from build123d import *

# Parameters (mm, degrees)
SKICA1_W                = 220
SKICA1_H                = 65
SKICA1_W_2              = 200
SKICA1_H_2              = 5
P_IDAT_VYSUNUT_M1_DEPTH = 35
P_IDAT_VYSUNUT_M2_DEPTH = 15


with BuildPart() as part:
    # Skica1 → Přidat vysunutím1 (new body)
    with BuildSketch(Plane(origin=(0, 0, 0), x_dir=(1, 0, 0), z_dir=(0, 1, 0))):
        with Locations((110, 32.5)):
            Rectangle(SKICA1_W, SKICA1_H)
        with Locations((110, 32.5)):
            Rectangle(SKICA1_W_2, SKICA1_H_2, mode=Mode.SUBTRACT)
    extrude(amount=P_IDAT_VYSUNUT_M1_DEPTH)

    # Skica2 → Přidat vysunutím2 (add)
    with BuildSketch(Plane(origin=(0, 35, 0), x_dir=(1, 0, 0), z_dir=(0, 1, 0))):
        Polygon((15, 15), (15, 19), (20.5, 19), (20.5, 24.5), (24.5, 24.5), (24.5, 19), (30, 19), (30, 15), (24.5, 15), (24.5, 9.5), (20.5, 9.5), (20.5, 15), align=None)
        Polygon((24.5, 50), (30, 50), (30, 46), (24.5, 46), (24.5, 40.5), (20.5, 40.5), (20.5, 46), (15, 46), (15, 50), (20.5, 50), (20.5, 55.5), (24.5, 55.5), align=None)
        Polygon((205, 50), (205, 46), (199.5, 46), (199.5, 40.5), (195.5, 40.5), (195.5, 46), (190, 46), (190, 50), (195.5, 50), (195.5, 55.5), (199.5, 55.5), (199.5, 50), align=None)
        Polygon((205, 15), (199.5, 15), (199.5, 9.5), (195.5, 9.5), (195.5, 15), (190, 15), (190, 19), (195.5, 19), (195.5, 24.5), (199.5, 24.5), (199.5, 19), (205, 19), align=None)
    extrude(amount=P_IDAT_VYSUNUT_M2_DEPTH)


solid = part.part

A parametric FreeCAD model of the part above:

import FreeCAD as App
import Part
import Sketcher

V = App.Vector

doc = App.newDocument("Part")
body = doc.addObject("PartDesign::Body", "Body")

# Sketch on XZ plane
sketch1 = doc.addObject("Sketcher::SketchObject", "Sketch")
body.addObject(sketch1)
sketch1.AttachmentSupport = (doc.XZ_Plane, [""])
sketch1.MapMode = "FlatFace"
sketch1.addGeometry(Part.LineSegment(V(0, -65, 0), V(0, 0, 0)), False)
sketch1.addGeometry(Part.LineSegment(V(0, 0, 0), V(220, 0, 0)), False)
sketch1.addGeometry(Part.LineSegment(V(220, 0, 0), V(220, -65, 0)), False)
sketch1.addGeometry(Part.LineSegment(V(220, -65, 0), V(0, -65, 0)), False)
sketch1.addGeometry(Part.LineSegment(V(210, -30, 0), V(10, -30, 0)), False)
sketch1.addGeometry(Part.LineSegment(V(10, -30, 0), V(10, -35, 0)), False)
sketch1.addGeometry(Part.LineSegment(V(10, -35, 0), V(210, -35, 0)), False)
sketch1.addGeometry(Part.LineSegment(V(210, -35, 0), V(210, -30, 0)), False)
sketch1.addConstraint(Sketcher.Constraint("Coincident", 0, 2, 1, 1))
sketch1.addConstraint(Sketcher.Constraint("Coincident", 1, 2, 2, 1))
sketch1.addConstraint(Sketcher.Constraint("Coincident", 2, 2, 3, 1))
sketch1.addConstraint(Sketcher.Constraint("Coincident", 3, 2, 0, 1))
sketch1.addConstraint(Sketcher.Constraint("Coincident", 4, 2, 5, 1))
sketch1.addConstraint(Sketcher.Constraint("Coincident", 5, 2, 6, 1))
sketch1.addConstraint(Sketcher.Constraint("Coincident", 6, 2, 7, 1))
sketch1.addConstraint(Sketcher.Constraint("Coincident", 7, 2, 4, 1))
sketch1.addConstraint(Sketcher.Constraint("Vertical", 0))
sketch1.addConstraint(Sketcher.Constraint("Horizontal", 1))
sketch1.addConstraint(Sketcher.Constraint("Vertical", 2))
sketch1.addConstraint(Sketcher.Constraint("Horizontal", 3))
sketch1.addConstraint(Sketcher.Constraint("Horizontal", 4))
sketch1.addConstraint(Sketcher.Constraint("Vertical", 5))
sketch1.addConstraint(Sketcher.Constraint("Horizontal", 6))
sketch1.addConstraint(Sketcher.Constraint("Vertical", 7))
sketch1.addConstraint(Sketcher.Constraint("Coincident", 0, 2, -1, 1))
sketch1.addConstraint(Sketcher.Constraint("DistanceX", 1, 1, 1, 2, 220.0))
sketch1.addConstraint(Sketcher.Constraint("DistanceX", 4, 2, 4, 1, 200.0))
sketch1.addConstraint(Sketcher.Constraint("DistanceY", 0, 1, 0, 2, 65.0))
sketch1.addConstraint(Sketcher.Constraint("DistanceY", 5, 2, 5, 1, 5.0))
sketch1.addConstraint(Sketcher.Constraint("DistanceX", -1, 1, 4, 2, 10.0))
sketch1.addConstraint(Sketcher.Constraint("DistanceY", 4, 2, -1, 1, 30.0))
pad1 = doc.addObject("PartDesign::Pad", "Pad")
body.addObject(pad1)
pad1.Profile = sketch1
pad1.Length = 35
pad1.Reversed = True

# Sketch on XZ plane
sketch2 = doc.addObject("Sketcher::SketchObject", "Sketch001")
body.addObject(sketch2)
sketch2.AttachmentSupport = (doc.XZ_Plane, [""])
sketch2.MapMode = "FlatFace"
sketch2.AttachmentOffset = App.Placement(V(0, 0, -35), App.Rotation())
sketch2.addGeometry(Part.LineSegment(V(15, -19, 0), V(15, -15, 0)), False)
sketch2.addGeometry(Part.LineSegment(V(15, -15, 0), V(20.5, -15, 0)), False)
sketch2.addGeometry(Part.LineSegment(V(20.5, -15, 0), V(20.5, -9.5, 0)), False)
sketch2.addGeometry(Part.LineSegment(V(20.5, -9.5, 0), V(24.5, -9.5, 0)), False)
sketch2.addGeometry(Part.LineSegment(V(24.5, -9.5, 0), V(24.5, -15, 0)), False)
sketch2.addGeometry(Part.LineSegment(V(24.5, -15, 0), V(30, -15, 0)), False)
sketch2.addGeometry(Part.LineSegment(V(30, -15, 0), V(30, -19, 0)), False)
sketch2.addGeometry(Part.LineSegment(V(30, -19, 0), V(24.5, -19, 0)), False)
sketch2.addGeometry(Part.LineSegment(V(24.5, -19, 0), V(24.5, -24.5, 0)), False)
sketch2.addGeometry(Part.LineSegment(V(24.5, -24.5, 0), V(20.5, -24.5, 0)), False)
sketch2.addGeometry(Part.LineSegment(V(20.5, -24.5, 0), V(20.5, -19, 0)), False)
sketch2.addGeometry(Part.LineSegment(V(20.5, -19, 0), V(15, -19, 0)), False)
sketch2.addGeometry(Part.LineSegment(V(30, -50, 0), V(24.5, -50, 0)), False)
sketch2.addGeometry(Part.LineSegment(V(24.5, -50, 0), V(24.5, -55.5, 0)), False)
sketch2.addGeometry(Part.LineSegment(V(24.5, -55.5, 0), V(20.5, -55.5, 0)), False)
sketch2.addGeometry(Part.LineSegment(V(20.5, -55.5, 0), V(20.5, -50, 0)), False)
sketch2.addGeometry(Part.LineSegment(V(20.5, -50, 0), V(15, -50, 0)), False)
sketch2.addGeometry(Part.LineSegment(V(15, -50, 0), V(15, -46, 0)), False)
sketch2.addGeometry(Part.LineSegment(V(15, -46, 0), V(20.5, -46, 0)), False)
sketch2.addGeometry(Part.LineSegment(V(20.5, -46, 0), V(20.5, -40.5, 0)), False)
sketch2.addGeometry(Part.LineSegment(V(20.5, -40.5, 0), V(24.5, -40.5, 0)), False)
sketch2.addGeometry(Part.LineSegment(V(24.5, -40.5, 0), V(24.5, -46, 0)), False)
sketch2.addGeometry(Part.LineSegment(V(24.5, -46, 0), V(30, -46, 0)), False)
sketch2.addGeometry(Part.LineSegment(V(30, -46, 0), V(30, -50, 0)), False)
sketch2.addGeometry(Part.LineSegment(V(205, -46, 0), V(205, -50, 0)), False)
sketch2.addGeometry(Part.LineSegment(V(205, -50, 0), V(199.5, -50, 0)), False)
sketch2.addGeometry(Part.LineSegment(V(199.5, -50, 0), V(199.5, -55.5, 0)), False)
sketch2.addGeometry(Part.LineSegment(V(199.5, -55.5, 0), V(195.5, -55.5, 0)), False)
sketch2.addGeometry(Part.LineSegment(V(195.5, -55.5, 0), V(195.5, -50, 0)), False)
sketch2.addGeometry(Part.LineSegment(V(195.5, -50, 0), V(190, -50, 0)), False)
sketch2.addGeometry(Part.LineSegment(V(190, -50, 0), V(190, -46, 0)), False)
sketch2.addGeometry(Part.LineSegment(V(190, -46, 0), V(195.5, -46, 0)), False)
sketch2.addGeometry(Part.LineSegment(V(195.5, -46, 0), V(195.5, -40.5, 0)), False)
sketch2.addGeometry(Part.LineSegment(V(195.5, -40.5, 0), V(199.5, -40.5, 0)), False)
sketch2.addGeometry(Part.LineSegment(V(199.5, -40.5, 0), V(199.5, -46, 0)), False)
sketch2.addGeometry(Part.LineSegment(V(199.5, -46, 0), V(205, -46, 0)), False)
sketch2.addGeometry(Part.LineSegment(V(199.5, -15, 0), V(205, -15, 0)), False)
sketch2.addGeometry(Part.LineSegment(V(205, -15, 0), V(205, -19, 0)), False)
sketch2.addGeometry(Part.LineSegment(V(205, -19, 0), V(199.5, -19, 0)), False)
sketch2.addGeometry(Part.LineSegment(V(199.5, -19, 0), V(199.5, -24.5, 0)), False)
sketch2.addGeometry(Part.LineSegment(V(199.5, -24.5, 0), V(195.5, -24.5, 0)), False)
sketch2.addGeometry(Part.LineSegment(V(195.5, -24.5, 0), V(195.5, -19, 0)), False)
sketch2.addGeometry(Part.LineSegment(V(195.5, -19, 0), V(190, -19, 0)), False)
sketch2.addGeometry(Part.LineSegment(V(190, -19, 0), V(190, -15, 0)), False)
sketch2.addGeometry(Part.LineSegment(V(190, -15, 0), V(195.5, -15, 0)), False)
sketch2.addGeometry(Part.LineSegment(V(195.5, -15, 0), V(195.5, -9.5, 0)), False)
sketch2.addGeometry(Part.LineSegment(V(195.5, -9.5, 0), V(199.5, -9.5, 0)), False)
sketch2.addGeometry(Part.LineSegment(V(199.5, -9.5, 0), V(199.5, -15, 0)), False)
sketch2.addConstraint(Sketcher.Constraint("Coincident", 0, 2, 1, 1))
sketch2.addConstraint(Sketcher.Constraint("Coincident", 1, 2, 2, 1))
sketch2.addConstraint(Sketcher.Constraint("Coincident", 2, 2, 3, 1))
sketch2.addConstraint(Sketcher.Constraint("Coincident", 3, 2, 4, 1))
sketch2.addConstraint(Sketcher.Constraint("Coincident", 4, 2, 5, 1))
sketch2.addConstraint(Sketcher.Constraint("Coincident", 5, 2, 6, 1))
sketch2.addConstraint(Sketcher.Constraint("Coincident", 6, 2, 7, 1))
sketch2.addConstraint(Sketcher.Constraint("Coincident", 7, 2, 8, 1))
sketch2.addConstraint(Sketcher.Constraint("Coincident", 8, 2, 9, 1))
sketch2.addConstraint(Sketcher.Constraint("Coincident", 9, 2, 10, 1))
sketch2.addConstraint(Sketcher.Constraint("Coincident", 10, 2, 11, 1))
sketch2.addConstraint(Sketcher.Constraint("Coincident", 11, 2, 0, 1))
sketch2.addConstraint(Sketcher.Constraint("Coincident", 12, 2, 13, 1))
sketch2.addConstraint(Sketcher.Constraint("Coincident", 13, 2, 14, 1))
sketch2.addConstraint(Sketcher.Constraint("Coincident", 14, 2, 15, 1))
sketch2.addConstraint(Sketcher.Constraint("Coincident", 15, 2, 16, 1))
sketch2.addConstraint(Sketcher.Constraint("Coincident", 16, 2, 17, 1))
sketch2.addConstraint(Sketcher.Constraint("Coincident", 17, 2, 18, 1))
sketch2.addConstraint(Sketcher.Constraint("Coincident", 18, 2, 19, 1))
sketch2.addConstraint(Sketcher.Constraint("Coincident", 19, 2, 20, 1))
sketch2.addConstraint(Sketcher.Constraint("Coincident", 20, 2, 21, 1))
sketch2.addConstraint(Sketcher.Constraint("Coincident", 21, 2, 22, 1))
sketch2.addConstraint(Sketcher.Constraint("Coincident", 22, 2, 23, 1))
sketch2.addConstraint(Sketcher.Constraint("Coincident", 23, 2, 12, 1))
sketch2.addConstraint(Sketcher.Constraint("Coincident", 24, 2, 25, 1))
sketch2.addConstraint(Sketcher.Constraint("Coincident", 25, 2, 26, 1))
sketch2.addConstraint(Sketcher.Constraint("Coincident", 26, 2, 27, 1))
sketch2.addConstraint(Sketcher.Constraint("Coincident", 27, 2, 28, 1))
sketch2.addConstraint(Sketcher.Constraint("Coincident", 28, 2, 29, 1))
sketch2.addConstraint(Sketcher.Constraint("Coincident", 29, 2, 30, 1))
sketch2.addConstraint(Sketcher.Constraint("Coincident", 30, 2, 31, 1))
sketch2.addConstraint(Sketcher.Constraint("Coincident", 31, 2, 32, 1))
sketch2.addConstraint(Sketcher.Constraint("Coincident", 32, 2, 33, 1))
sketch2.addConstraint(Sketcher.Constraint("Coincident", 33, 2, 34, 1))
sketch2.addConstraint(Sketcher.Constraint("Coincident", 34, 2, 35, 1))
sketch2.addConstraint(Sketcher.Constraint("Coincident", 35, 2, 24, 1))
sketch2.addConstraint(Sketcher.Constraint("Coincident", 36, 2, 37, 1))
sketch2.addConstraint(Sketcher.Constraint("Coincident", 37, 2, 38, 1))
sketch2.addConstraint(Sketcher.Constraint("Coincident", 38, 2, 39, 1))
sketch2.addConstraint(Sketcher.Constraint("Coincident", 39, 2, 40, 1))
sketch2.addConstraint(Sketcher.Constraint("Coincident", 40, 2, 41, 1))
sketch2.addConstraint(Sketcher.Constraint("Coincident", 41, 2, 42, 1))
sketch2.addConstraint(Sketcher.Constraint("Coincident", 42, 2, 43, 1))
sketch2.addConstraint(Sketcher.Constraint("Coincident", 43, 2, 44, 1))
sketch2.addConstraint(Sketcher.Constraint("Coincident", 44, 2, 45, 1))
sketch2.addConstraint(Sketcher.Constraint("Coincident", 45, 2, 46, 1))
sketch2.addConstraint(Sketcher.Constraint("Coincident", 46, 2, 47, 1))
sketch2.addConstraint(Sketcher.Constraint("Coincident", 47, 2, 36, 1))
sketch2.addConstraint(Sketcher.Constraint("Vertical", 0))
sketch2.addConstraint(Sketcher.Constraint("Horizontal", 1))
sketch2.addConstraint(Sketcher.Constraint("Vertical", 2))
sketch2.addConstraint(Sketcher.Constraint("Horizontal", 3))
sketch2.addConstraint(Sketcher.Constraint("Vertical", 4))
sketch2.addConstraint(Sketcher.Constraint("Horizontal", 5))
sketch2.addConstraint(Sketcher.Constraint("Vertical", 6))
sketch2.addConstraint(Sketcher.Constraint("Horizontal", 7))
sketch2.addConstraint(Sketcher.Constraint("Vertical", 8))
sketch2.addConstraint(Sketcher.Constraint("Horizontal", 9))
sketch2.addConstraint(Sketcher.Constraint("Vertical", 10))
sketch2.addConstraint(Sketcher.Constraint("Horizontal", 11))
sketch2.addConstraint(Sketcher.Constraint("Horizontal", 12))
sketch2.addConstraint(Sketcher.Constraint("Vertical", 13))
sketch2.addConstraint(Sketcher.Constraint("Horizontal", 14))
sketch2.addConstraint(Sketcher.Constraint("Vertical", 15))
sketch2.addConstraint(Sketcher.Constraint("Horizontal", 16))
sketch2.addConstraint(Sketcher.Constraint("Vertical", 17))
sketch2.addConstraint(Sketcher.Constraint("Horizontal", 18))
sketch2.addConstraint(Sketcher.Constraint("Vertical", 19))
sketch2.addConstraint(Sketcher.Constraint("Horizontal", 20))
sketch2.addConstraint(Sketcher.Constraint("Vertical", 21))
sketch2.addConstraint(Sketcher.Constraint("Horizontal", 22))
sketch2.addConstraint(Sketcher.Constraint("Vertical", 23))
sketch2.addConstraint(Sketcher.Constraint("Vertical", 24))
sketch2.addConstraint(Sketcher.Constraint("Horizontal", 25))
sketch2.addConstraint(Sketcher.Constraint("Vertical", 26))
sketch2.addConstraint(Sketcher.Constraint("Horizontal", 27))
sketch2.addConstraint(Sketcher.Constraint("Vertical", 28))
sketch2.addConstraint(Sketcher.Constraint("Horizontal", 29))
sketch2.addConstraint(Sketcher.Constraint("Vertical", 30))
sketch2.addConstraint(Sketcher.Constraint("Horizontal", 31))
sketch2.addConstraint(Sketcher.Constraint("Vertical", 32))
sketch2.addConstraint(Sketcher.Constraint("Horizontal", 33))
sketch2.addConstraint(Sketcher.Constraint("Vertical", 34))
sketch2.addConstraint(Sketcher.Constraint("Horizontal", 35))
sketch2.addConstraint(Sketcher.Constraint("Horizontal", 36))
sketch2.addConstraint(Sketcher.Constraint("Vertical", 37))
sketch2.addConstraint(Sketcher.Constraint("Horizontal", 38))
sketch2.addConstraint(Sketcher.Constraint("Vertical", 39))
sketch2.addConstraint(Sketcher.Constraint("Horizontal", 40))
sketch2.addConstraint(Sketcher.Constraint("Vertical", 41))
sketch2.addConstraint(Sketcher.Constraint("Horizontal", 42))
sketch2.addConstraint(Sketcher.Constraint("Vertical", 43))
sketch2.addConstraint(Sketcher.Constraint("Horizontal", 44))
sketch2.addConstraint(Sketcher.Constraint("Vertical", 45))
sketch2.addConstraint(Sketcher.Constraint("Horizontal", 46))
sketch2.addConstraint(Sketcher.Constraint("Vertical", 47))
sketch2.addConstraint(Sketcher.Constraint("Horizontal", 1, 2, 4, 2))
sketch2.addConstraint(Sketcher.Constraint("Horizontal", 7, 2, 10, 2))
sketch2.addConstraint(Sketcher.Constraint("Horizontal", 12, 2, 15, 2))
sketch2.addConstraint(Sketcher.Constraint("Horizontal", 18, 2, 21, 2))
sketch2.addConstraint(Sketcher.Constraint("Horizontal", 23, 2, 24, 2))
sketch2.addConstraint(Sketcher.Constraint("Horizontal", 14, 2, 26, 2))
sketch2.addConstraint(Sketcher.Constraint("Horizontal", 25, 2, 28, 2))
sketch2.addConstraint(Sketcher.Constraint("Horizontal", 22, 2, 30, 2))
sketch2.addConstraint(Sketcher.Constraint("Horizontal", 20, 2, 32, 2))
sketch2.addConstraint(Sketcher.Constraint("Horizontal", 31, 2, 34, 2))
sketch2.addConstraint(Sketcher.Constraint("Horizontal", 5, 2, 36, 2))
sketch2.addConstraint(Sketcher.Constraint("Horizontal", 11, 2, 37, 2))
sketch2.addConstraint(Sketcher.Constraint("Horizontal", 9, 2, 39, 2))
sketch2.addConstraint(Sketcher.Constraint("Horizontal", 38, 2, 41, 2))
sketch2.addConstraint(Sketcher.Constraint("Horizontal", 36, 2, 43, 2))
sketch2.addConstraint(Sketcher.Constraint("Horizontal", 3, 2, 45, 2))
sketch2.addConstraint(Sketcher.Constraint("Vertical", 4, 2, 7, 2))
sketch2.addConstraint(Sketcher.Constraint("Vertical", 2, 2, 9, 2))
sketch2.addConstraint(Sketcher.Constraint("Vertical", 8, 2, 12, 2))
sketch2.addConstraint(Sketcher.Constraint("Vertical", 10, 2, 14, 2))
sketch2.addConstraint(Sketcher.Constraint("Vertical", 11, 2, 16, 2))
sketch2.addConstraint(Sketcher.Constraint("Vertical", 15, 2, 18, 2))
sketch2.addConstraint(Sketcher.Constraint("Vertical", 13, 2, 20, 2))
sketch2.addConstraint(Sketcher.Constraint("Vertical", 6, 2, 22, 2))
sketch2.addConstraint(Sketcher.Constraint("Vertical", 28, 2, 31, 2))
sketch2.addConstraint(Sketcher.Constraint("Vertical", 26, 2, 33, 2))
sketch2.addConstraint(Sketcher.Constraint("Vertical", 35, 2, 36, 2))
sketch2.addConstraint(Sketcher.Constraint("Vertical", 34, 2, 38, 2))
sketch2.addConstraint(Sketcher.Constraint("Vertical", 32, 2, 40, 2))
sketch2.addConstraint(Sketcher.Constraint("Vertical", 30, 2, 42, 2))
sketch2.addConstraint(Sketcher.Constraint("Vertical", 41, 2, 44, 2))
sketch2.addConstraint(Sketcher.Constraint("Vertical", 39, 2, 46, 2))
sketch2.addConstraint(Sketcher.Constraint("Equal", 1, 5))
sketch2.addConstraint(Sketcher.Constraint("Equal", 22, 25))
sketch2.addConstraint(Sketcher.Constraint("Equal", 20, 27))
sketch2.addConstraint(Sketcher.Constraint("Equal", 25, 29))
sketch2.addConstraint(Sketcher.Constraint("Equal", 46, 0))
sketch2.addConstraint(Sketcher.Constraint("Equal", 44, 2))
sketch2.addConstraint(Sketcher.Constraint("Equal", 4, 8))
sketch2.addConstraint(Sketcher.Constraint("Equal", 10, 13))
sketch2.addConstraint(Sketcher.Constraint("Equal", 6, 17))
sketch2.addConstraint(Sketcher.Constraint("Equal", 15, 19))
sketch2.addConstraint(Sketcher.Constraint("DistanceX", 3, 1, 3, 2, 4.0))
sketch2.addConstraint(Sketcher.Constraint("DistanceX", 1, 1, 1, 2, 5.5))
sketch2.addConstraint(Sketcher.Constraint("DistanceX", -1, 1, 0, 2, 15.0))
sketch2.addConstraint(Sketcher.Constraint("DistanceY", 0, 2, -1, 1, 15.0))
sketch2.addConstraint(Sketcher.Constraint("DistanceY", 12, 2, -1, 1, 50.0))
sketch2.addConstraint(Sketcher.Constraint("DistanceX", -1, 1, 24, 2, 205.0))
pad2 = doc.addObject("PartDesign::Pad", "Pad001")
body.addObject(pad2)
pad2.Profile = sketch2
pad2.Length = 15
pad2.Reversed = True

doc.recompute()
